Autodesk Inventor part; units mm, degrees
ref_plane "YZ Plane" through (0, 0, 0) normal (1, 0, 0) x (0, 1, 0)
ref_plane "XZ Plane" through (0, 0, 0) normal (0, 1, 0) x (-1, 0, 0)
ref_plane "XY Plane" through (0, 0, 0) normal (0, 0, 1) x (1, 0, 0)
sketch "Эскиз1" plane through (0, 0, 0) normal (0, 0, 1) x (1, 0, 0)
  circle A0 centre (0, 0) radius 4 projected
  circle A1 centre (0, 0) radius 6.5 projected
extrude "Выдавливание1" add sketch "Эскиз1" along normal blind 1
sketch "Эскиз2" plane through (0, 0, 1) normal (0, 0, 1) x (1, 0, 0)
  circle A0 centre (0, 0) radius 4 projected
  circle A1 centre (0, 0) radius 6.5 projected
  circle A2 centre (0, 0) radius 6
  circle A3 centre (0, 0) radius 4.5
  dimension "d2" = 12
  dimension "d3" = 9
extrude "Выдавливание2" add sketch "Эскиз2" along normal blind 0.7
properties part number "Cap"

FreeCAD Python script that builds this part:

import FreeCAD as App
import Part
import Sketcher

V = App.Vector
Q = App.Units.Quantity

doc = App.newDocument("Part")
params = doc.addObject("Spreadsheet::Sheet", "Params")
for row, (alias, value) in enumerate([
    ("sketch1_diameter", "13 mm"),
    ("sketch1_diameter2", "8 mm"),
    ("pad1_length", "1 mm"),
    ("sketch2_diameter", "12 mm"),
    ("sketch2_diameter2", "9 mm"),
    ("sketch2_diameter3", "13 mm"),
    ("sketch2_diameter4", "8 mm"),
    ("pad2_length", "0.7 mm"),
], start=1):
    params.set(f"A{row}", alias)
    params.set(f"B{row}", "=" + value)
    params.setAlias(f"B{row}", alias)

body = doc.addObject("PartDesign::Body", "Body")

# Sketch on XY plane
sketch1 = body.newObject("Sketcher::SketchObject", "Sketch")
sketch1.AttachmentSupport = (doc.getObject("XY_Plane"), [""])
sketch1.MapMode = "FlatFace"
sketch1.addGeometry(Part.Circle(V(0, 0, 0), V(0, 0, 1), 6.5), False)
sketch1.addGeometry(Part.Circle(V(0, 0, 0), V(0, 0, 1), 4), False)
sketch1.addConstraint(Sketcher.Constraint("Coincident", 0, 3, -1, 1))
sketch1.addConstraint(Sketcher.Constraint("Coincident", 1, 3, -1, 1))
sketch1.addConstraint(Sketcher.Constraint("Diameter", 0, Q("13 mm")))
sketch1.addConstraint(Sketcher.Constraint("Diameter", 1, Q("8 mm")))
sketch1.setExpression("Constraints[2]", "Params.sketch1_diameter")
sketch1.setExpression("Constraints[3]", "Params.sketch1_diameter2")
pad1 = body.newObject("PartDesign::Pad", "Pad")
pad1.Profile = sketch1
pad1.setExpression("Length", "Params.pad1_length")

# Sketch on XY plane
sketch2 = body.newObject("Sketcher::SketchObject", "Sketch001")
sketch2.AttachmentSupport = (doc.getObject("XY_Plane"), [""])
sketch2.MapMode = "FlatFace"
sketch2.AttachmentOffset = App.Placement(V(0, 0, 1), App.Rotation())
sketch2.addGeometry(Part.Circle(V(0, 0, 0), V(0, 0, 1), 6.5), False)
sketch2.addGeometry(Part.Circle(V(0, 0, 0), V(0, 0, 1), 6), False)
sketch2.addGeometry(Part.Circle(V(0, 0, 0), V(0, 0, 1), 4.5), False)
sketch2.addGeometry(Part.Circle(V(0, 0, 0), V(0, 0, 1), 4), False)
sketch2.addConstraint(Sketcher.Constraint("Coincident", 0, 3, -1, 1))
sketch2.addConstraint(Sketcher.Constraint("Coincident", 1, 3, -1, 1))
sketch2.addConstraint(Sketcher.Constraint("Coincident", 2, 3, -1, 1))
sketch2.addConstraint(Sketcher.Constraint("Coincident", 3, 3, -1, 1))
sketch2.addConstraint(Sketcher.Constraint("Diameter", 1, Q("12 mm")))
sketch2.addConstraint(Sketcher.Constraint("Diameter", 2, Q("9 mm")))
sketch2.addConstraint(Sketcher.Constraint("Diameter", 0, Q("13 mm")))
sketch2.addConstraint(Sketcher.Constraint("Diameter", 3, Q("8 mm")))
sketch2.setExpression("Constraints[4]", "Params.sketch2_diameter")
sketch2.setExpression("Constraints[5]", "Params.sketch2_diameter2")
sketch2.setExpression("Constraints[6]", "Params.sketch2_diameter3")
sketch2.setExpression("Constraints[7]", "Params.sketch2_diameter4")
pad2 = body.newObject("PartDesign::Pad", "Pad001")
pad2.Profile = sketch2
pad2.setExpression("Length", "Params.pad2_length")

doc.recompute()
